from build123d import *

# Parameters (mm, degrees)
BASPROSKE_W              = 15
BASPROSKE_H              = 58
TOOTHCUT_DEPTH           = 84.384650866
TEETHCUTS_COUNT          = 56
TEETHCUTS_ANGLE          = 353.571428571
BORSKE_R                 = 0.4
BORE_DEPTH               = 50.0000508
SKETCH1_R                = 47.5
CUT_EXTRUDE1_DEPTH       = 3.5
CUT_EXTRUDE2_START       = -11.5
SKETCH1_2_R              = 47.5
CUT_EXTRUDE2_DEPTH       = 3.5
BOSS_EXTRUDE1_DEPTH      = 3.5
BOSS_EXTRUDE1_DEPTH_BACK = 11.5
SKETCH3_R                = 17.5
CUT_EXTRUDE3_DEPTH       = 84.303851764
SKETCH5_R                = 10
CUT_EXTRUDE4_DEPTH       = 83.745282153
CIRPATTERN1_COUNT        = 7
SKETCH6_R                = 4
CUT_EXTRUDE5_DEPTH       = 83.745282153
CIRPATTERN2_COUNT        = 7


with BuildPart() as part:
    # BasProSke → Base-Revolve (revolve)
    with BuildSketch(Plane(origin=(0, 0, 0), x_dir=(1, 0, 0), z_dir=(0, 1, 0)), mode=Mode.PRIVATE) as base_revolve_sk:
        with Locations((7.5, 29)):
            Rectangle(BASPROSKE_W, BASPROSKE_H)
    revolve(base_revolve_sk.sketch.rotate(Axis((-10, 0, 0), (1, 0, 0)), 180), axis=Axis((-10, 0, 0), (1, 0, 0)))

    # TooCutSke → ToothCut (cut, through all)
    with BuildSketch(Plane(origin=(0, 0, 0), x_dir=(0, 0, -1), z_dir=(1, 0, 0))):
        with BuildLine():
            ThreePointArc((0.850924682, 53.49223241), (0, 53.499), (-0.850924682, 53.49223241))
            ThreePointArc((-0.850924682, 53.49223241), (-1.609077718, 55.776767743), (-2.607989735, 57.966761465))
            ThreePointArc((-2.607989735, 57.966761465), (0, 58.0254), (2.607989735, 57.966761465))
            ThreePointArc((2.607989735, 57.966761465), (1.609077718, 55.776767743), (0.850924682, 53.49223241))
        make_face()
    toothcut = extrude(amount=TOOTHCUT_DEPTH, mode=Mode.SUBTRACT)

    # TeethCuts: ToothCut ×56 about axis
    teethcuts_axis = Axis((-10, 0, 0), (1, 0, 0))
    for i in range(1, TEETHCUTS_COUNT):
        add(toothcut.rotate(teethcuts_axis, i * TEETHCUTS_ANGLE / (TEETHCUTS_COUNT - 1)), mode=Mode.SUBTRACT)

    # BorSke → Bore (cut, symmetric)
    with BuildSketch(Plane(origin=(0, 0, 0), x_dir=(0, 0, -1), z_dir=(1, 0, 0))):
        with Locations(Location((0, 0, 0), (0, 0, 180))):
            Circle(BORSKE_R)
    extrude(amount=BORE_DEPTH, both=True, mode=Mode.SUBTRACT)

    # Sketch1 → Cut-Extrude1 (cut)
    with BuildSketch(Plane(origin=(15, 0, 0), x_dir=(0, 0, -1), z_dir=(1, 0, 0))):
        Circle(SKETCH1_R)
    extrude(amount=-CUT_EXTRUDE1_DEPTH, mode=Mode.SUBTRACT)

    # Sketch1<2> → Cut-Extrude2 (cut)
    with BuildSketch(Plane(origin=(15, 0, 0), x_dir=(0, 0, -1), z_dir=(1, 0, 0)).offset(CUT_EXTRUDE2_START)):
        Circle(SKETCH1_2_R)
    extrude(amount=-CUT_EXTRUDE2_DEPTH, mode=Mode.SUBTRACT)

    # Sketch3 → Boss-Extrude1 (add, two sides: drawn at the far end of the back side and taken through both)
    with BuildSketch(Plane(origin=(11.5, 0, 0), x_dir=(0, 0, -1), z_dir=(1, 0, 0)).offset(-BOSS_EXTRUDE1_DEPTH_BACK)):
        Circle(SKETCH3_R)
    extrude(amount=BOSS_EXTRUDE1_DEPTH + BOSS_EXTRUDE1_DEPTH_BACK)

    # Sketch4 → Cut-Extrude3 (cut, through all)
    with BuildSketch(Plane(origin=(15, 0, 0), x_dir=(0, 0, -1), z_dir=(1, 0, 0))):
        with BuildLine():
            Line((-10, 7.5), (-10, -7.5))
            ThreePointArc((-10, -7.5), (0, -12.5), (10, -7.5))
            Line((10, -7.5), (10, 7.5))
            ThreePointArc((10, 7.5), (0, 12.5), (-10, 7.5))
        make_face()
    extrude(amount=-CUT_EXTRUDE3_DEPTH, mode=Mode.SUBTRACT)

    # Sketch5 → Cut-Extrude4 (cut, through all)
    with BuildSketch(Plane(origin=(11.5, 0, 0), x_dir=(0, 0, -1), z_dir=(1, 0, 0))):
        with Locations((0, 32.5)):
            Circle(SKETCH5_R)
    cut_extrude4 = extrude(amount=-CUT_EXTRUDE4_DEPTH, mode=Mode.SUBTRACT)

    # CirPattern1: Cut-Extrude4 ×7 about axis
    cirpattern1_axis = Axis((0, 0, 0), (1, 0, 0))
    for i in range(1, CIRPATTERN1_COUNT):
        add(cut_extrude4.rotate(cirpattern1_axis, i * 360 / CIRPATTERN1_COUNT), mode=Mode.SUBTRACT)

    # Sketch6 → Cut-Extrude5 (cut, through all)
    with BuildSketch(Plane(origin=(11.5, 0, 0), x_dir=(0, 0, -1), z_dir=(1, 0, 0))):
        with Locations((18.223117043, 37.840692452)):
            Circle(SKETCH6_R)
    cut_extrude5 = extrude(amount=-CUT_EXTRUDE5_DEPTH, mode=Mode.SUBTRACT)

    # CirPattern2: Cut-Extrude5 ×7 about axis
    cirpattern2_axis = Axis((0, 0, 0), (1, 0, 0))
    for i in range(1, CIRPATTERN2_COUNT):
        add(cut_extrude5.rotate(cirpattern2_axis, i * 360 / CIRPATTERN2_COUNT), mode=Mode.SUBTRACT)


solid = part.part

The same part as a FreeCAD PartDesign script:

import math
import FreeCAD as App
import Part
import Sketcher
from FreeCAD import Vector

doc = App.newDocument("Part")
body = doc.addObject("PartDesign::Body", "Body")

sketch1 = body.newObject("Sketcher::SketchObject", "Sketch")
sketch1.AttachmentSupport = (doc.getObject("XZ_Plane"), [""])
sketch1.MapMode = "FlatFace"
sketch1.addGeometry([
    Part.LineSegment(Vector(0, -58, 0), Vector(0, 0, 0)),
    Part.LineSegment(Vector(0, 0, 0), Vector(15, 0, 0)),
    Part.LineSegment(Vector(15, 0, 0), Vector(15, -58, 0)),
    Part.LineSegment(Vector(15, -58, 0), Vector(0, -58, 0)),
], False)
sketch1.addConstraint([
    Sketcher.Constraint("Coincident", 0, 2, 1, 1),
    Sketcher.Constraint("Coincident", 1, 2, 2, 1),
    Sketcher.Constraint("Coincident", 2, 2, 3, 1),
    Sketcher.Constraint("Coincident", 3, 2, 0, 1),
    Sketcher.Constraint("Vertical", 0),
    Sketcher.Constraint("Horizontal", 1),
    Sketcher.Constraint("Vertical", 2),
    Sketcher.Constraint("Horizontal", 3),
    Sketcher.Constraint("Coincident", 0, 2, -1, 1),
    Sketcher.Constraint("DistanceX", 1, 1, 1, 2, 15.0),
    Sketcher.Constraint("DistanceY", 0, 1, 0, 2, 58.0),
])
revolution = body.newObject("PartDesign::Revolution", "Revolution")
revolution.Profile = sketch1
revolution.ReferenceAxis = (sketch1, ["H_Axis"])
revolution.Angle = 360

sketch2 = body.newObject("Sketcher::SketchObject", "Sketch001")
sketch2.AttachmentSupport = (doc.getObject("YZ_Plane"), [""])
sketch2.MapMode = "FlatFace"
sketch2.addGeometry([
    Part.ArcOfCircle(Part.Circle(Vector(0, 0, 0), Vector(0, 0, 1), 53.5), math.radians(-0.91), math.radians(0.91)),
    Part.ArcOfCircle(Part.Circle(Vector(47.6, -22.5, 0), Vector(0, 0, 1), 22.4), math.radians(62.4), math.radians(74.72)),
    Part.ArcOfCircle(Part.Circle(Vector(0, 0, 0), Vector(0, 0, 1), 58), math.radians(-2.58), math.radians(2.58)),
    Part.ArcOfCircle(Part.Circle(Vector(47.6, 22.5, 0), Vector(0, 0, 1), 22.4), math.radians(-74.72), math.radians(-62.4)),
], False)
sketch2.addConstraint([
    Sketcher.Constraint("Coincident", 0, 1, 1, 2),
    Sketcher.Constraint("Coincident", 1, 1, 2, 1),
    Sketcher.Constraint("Coincident", 2, 2, 3, 2),
    Sketcher.Constraint("Coincident", 3, 1, 0, 2),
    Sketcher.Constraint("Coincident", 0, 3, -1, 1),
    Sketcher.Constraint("Coincident", 2, 3, -1, 1),
    Sketcher.Constraint("Equal", 1, 3),
    Sketcher.Constraint("Symmetric", 1, 3, 3, 3, -1),
    Sketcher.Constraint("Radius", 1, 22.4),
    Sketcher.Constraint("Radius", 0, 53.499001),
    Sketcher.Constraint("Radius", 2, 58.0254),
    Sketcher.Constraint("DistanceY", 1, 1, -1, 1, 2.60799),
    Sketcher.Constraint("DistanceY", 0, 1, 3, 3, 23.310082),
])
pocket1 = body.newObject("PartDesign::Pocket", "Pocket")
pocket1.Profile = sketch2
pocket1.Type = "ThroughAll"
pocket1.Reversed = True
doc.recompute()

polarpattern = body.newObject("PartDesign::PolarPattern", "PolarPattern")
polarpattern.Originals = [pocket1]
polarpattern.Axis = (doc.getObject("X_Axis"), [""])
polarpattern.Angle = 360
polarpattern.Occurrences = 56
body.Tip = polarpattern

sketch3 = body.newObject("Sketcher::SketchObject", "Sketch002")
sketch3.AttachmentSupport = (doc.getObject("YZ_Plane"), [""])
sketch3.MapMode = "FlatFace"
sketch3.addGeometry(Part.Circle(Vector(0, 0, 0), Vector(0, 0, 1), 0.4), False)
sketch3.addConstraint([
    Sketcher.Constraint("Coincident", 0, 3, -1, 1),
    Sketcher.Constraint("Diameter", 0, 0.8),
])
pocket2 = body.newObject("PartDesign::Pocket", "Pocket001")
pocket2.Profile = sketch3
pocket2.Length = 100.000102
pocket2.Midplane = True

sketch4 = body.newObject("Sketcher::SketchObject", "Sketch003")
sketch4.AttachmentSupport = (doc.getObject("YZ_Plane"), [""])
sketch4.MapMode = "FlatFace"
sketch4.AttachmentOffset = App.Placement(Vector(0, 0, 15), App.Rotation())
sketch4.addGeometry(Part.Circle(Vector(0, 0, 0), Vector(0, 0, 1), 48), False)
sketch4.addConstraint([
    Sketcher.Constraint("Coincident", 0, 3, -1, 1),
    Sketcher.Constraint("Diameter", 0, 95.0),
])
pocket3 = body.newObject("PartDesign::Pocket", "Pocket002")
pocket3.Profile = sketch4
pocket3.Length = 3.5

sketch5 = body.newObject("Sketcher::SketchObject", "Sketch004")
sketch5.AttachmentSupport = (doc.getObject("YZ_Plane"), [""])
sketch5.MapMode = "FlatFace"
sketch5.AttachmentOffset = App.Placement(Vector(0, 0, 3.5), App.Rotation())
sketch5.addGeometry(Part.Circle(Vector(0, 0, 0), Vector(0, 0, 1), 48), False)
sketch5.addConstraint([
    Sketcher.Constraint("Coincident", 0, 3, -1, 1),
    Sketcher.Constraint("Diameter", 0, 95.0),
])
pocket4 = body.newObject("PartDesign::Pocket", "Pocket003")
pocket4.Profile = sketch5
pocket4.Length = 3.5

sketch6 = body.newObject("Sketcher::SketchObject", "Sketch005")
sketch6.AttachmentSupport = (doc.getObject("YZ_Plane"), [""])
sketch6.MapMode = "FlatFace"
sketch6.AttachmentOffset = App.Placement(Vector(0, 0, 11.5), App.Rotation())
sketch6.addGeometry(Part.Circle(Vector(0, 0, 0), Vector(0, 0, 1), 18), False)
sketch6.addConstraint([
    Sketcher.Constraint("Coincident", 0, 3, -1, 1),
    Sketcher.Constraint("Diameter", 0, 35.0),
])
pad1 = body.newObject("PartDesign::Pad", "Pad")
pad1.Profile = sketch6
pad1.Type = "TwoLengths"
pad1.Length = 3.5
pad1.Length2 = 11.5

sketch7 = body.newObject("Sketcher::SketchObject", "Sketch006")
sketch7.AttachmentSupport = (doc.getObject("YZ_Plane"), [""])
sketch7.MapMode = "FlatFace"
sketch7.AttachmentOffset = App.Placement(Vector(0, 0, 15), App.Rotation())
sketch7.addGeometry([
    Part.LineSegment(Vector(8, 10, 0), Vector(-8, 10, 0)),
    Part.ArcOfCircle(Part.Circle(Vector(0, 0, 0), Vector(0, 0, 1), 12), math.radians(127), math.radians(233)),
    Part.LineSegment(Vector(-8, -10, 0), Vector(8, -10, 0)),
    Part.ArcOfCircle(Part.Circle(Vector(0, 0, 0), Vector(0, 0, 1), 12), math.radians(-53), math.radians(53)),
], False)
sketch7.addConstraint([
    Sketcher.Constraint("Coincident", 0, 2, 1, 1),
    Sketcher.Constraint("Coincident", 1, 2, 2, 1),
    Sketcher.Constraint("Coincident", 2, 2, 3, 1),
    Sketcher.Constraint("Coincident", 3, 2, 0, 1),
    Sketcher.Constraint("Horizontal", 0),
    Sketcher.Constraint("Horizontal", 2),
    Sketcher.Constraint("Coincident", 1, 3, -1, 1),
    Sketcher.Constraint("Coincident", 3, 3, -1, 1),
    Sketcher.Constraint("Equal", 1, 3),
    Sketcher.Constraint("Vertical", 0, 2, 1, 2),
    Sketcher.Constraint("Radius", 1, 12.5),
    Sketcher.Constraint("DistanceX", 0, 2, 0, 1, 15.0),
])
pocket5 = body.newObject("PartDesign::Pocket", "Pocket004")
pocket5.Profile = sketch7
pocket5.Type = "ThroughAll"

sketch8 = body.newObject("Sketcher::SketchObject", "Sketch007")
sketch8.AttachmentSupport = (doc.getObject("YZ_Plane"), [""])
sketch8.MapMode = "FlatFace"
sketch8.AttachmentOffset = App.Placement(Vector(0, 0, 11.5), App.Rotation())
sketch8.addGeometry(Part.Circle(Vector(32, 0, 0), Vector(0, 0, 1), 10), False)
sketch8.addConstraint([
    Sketcher.Constraint("PointOnObject", 0, 3, -1),
    Sketcher.Constraint("Diameter", 0, 20.0),
    Sketcher.Constraint("DistanceX", -1, 1, 0, 3, 32.5),
])
pocket6 = body.newObject("PartDesign::Pocket", "Pocket005")
pocket6.Profile = sketch8
pocket6.Type = "ThroughAll"
doc.recompute()

polarpattern2 = body.newObject("PartDesign::PolarPattern", "PolarPattern001")
polarpattern2.Originals = [pocket6]
polarpattern2.Axis = (doc.getObject("X_Axis"), [""])
polarpattern2.Angle = 360
polarpattern2.Occurrences = 7
body.Tip = polarpattern2

sketch9 = body.newObject("Sketcher::SketchObject", "Sketch008")
sketch9.AttachmentSupport = (doc.getObject("YZ_Plane"), [""])
sketch9.MapMode = "FlatFace"
sketch9.AttachmentOffset = App.Placement(Vector(0, 0, 11.5), App.Rotation())
sketch9.addGeometry(Part.Circle(Vector(37.8, -18.2, 0), Vector(0, 0, 1), 4), False)
sketch9.addConstraint([
    Sketcher.Constraint("Diameter", 0, 8.0),
    Sketcher.Constraint("DistanceX", -1, 1, 0, 3, 37.840692),
    Sketcher.Constraint("DistanceY", 0, 3, -1, 1, 18.223117),
])
pocket7 = body.newObject("PartDesign::Pocket", "Pocket006")
pocket7.Profile = sketch9
pocket7.Type = "ThroughAll"
doc.recompute()

polarpattern3 = body.newObject("PartDesign::PolarPattern", "PolarPattern002")
polarpattern3.Originals = [pocket7]
polarpattern3.Axis = (doc.getObject("X_Axis"), [""])
polarpattern3.Angle = 360
polarpattern3.Occurrences = 7
body.Tip = polarpattern3

doc.recompute()
